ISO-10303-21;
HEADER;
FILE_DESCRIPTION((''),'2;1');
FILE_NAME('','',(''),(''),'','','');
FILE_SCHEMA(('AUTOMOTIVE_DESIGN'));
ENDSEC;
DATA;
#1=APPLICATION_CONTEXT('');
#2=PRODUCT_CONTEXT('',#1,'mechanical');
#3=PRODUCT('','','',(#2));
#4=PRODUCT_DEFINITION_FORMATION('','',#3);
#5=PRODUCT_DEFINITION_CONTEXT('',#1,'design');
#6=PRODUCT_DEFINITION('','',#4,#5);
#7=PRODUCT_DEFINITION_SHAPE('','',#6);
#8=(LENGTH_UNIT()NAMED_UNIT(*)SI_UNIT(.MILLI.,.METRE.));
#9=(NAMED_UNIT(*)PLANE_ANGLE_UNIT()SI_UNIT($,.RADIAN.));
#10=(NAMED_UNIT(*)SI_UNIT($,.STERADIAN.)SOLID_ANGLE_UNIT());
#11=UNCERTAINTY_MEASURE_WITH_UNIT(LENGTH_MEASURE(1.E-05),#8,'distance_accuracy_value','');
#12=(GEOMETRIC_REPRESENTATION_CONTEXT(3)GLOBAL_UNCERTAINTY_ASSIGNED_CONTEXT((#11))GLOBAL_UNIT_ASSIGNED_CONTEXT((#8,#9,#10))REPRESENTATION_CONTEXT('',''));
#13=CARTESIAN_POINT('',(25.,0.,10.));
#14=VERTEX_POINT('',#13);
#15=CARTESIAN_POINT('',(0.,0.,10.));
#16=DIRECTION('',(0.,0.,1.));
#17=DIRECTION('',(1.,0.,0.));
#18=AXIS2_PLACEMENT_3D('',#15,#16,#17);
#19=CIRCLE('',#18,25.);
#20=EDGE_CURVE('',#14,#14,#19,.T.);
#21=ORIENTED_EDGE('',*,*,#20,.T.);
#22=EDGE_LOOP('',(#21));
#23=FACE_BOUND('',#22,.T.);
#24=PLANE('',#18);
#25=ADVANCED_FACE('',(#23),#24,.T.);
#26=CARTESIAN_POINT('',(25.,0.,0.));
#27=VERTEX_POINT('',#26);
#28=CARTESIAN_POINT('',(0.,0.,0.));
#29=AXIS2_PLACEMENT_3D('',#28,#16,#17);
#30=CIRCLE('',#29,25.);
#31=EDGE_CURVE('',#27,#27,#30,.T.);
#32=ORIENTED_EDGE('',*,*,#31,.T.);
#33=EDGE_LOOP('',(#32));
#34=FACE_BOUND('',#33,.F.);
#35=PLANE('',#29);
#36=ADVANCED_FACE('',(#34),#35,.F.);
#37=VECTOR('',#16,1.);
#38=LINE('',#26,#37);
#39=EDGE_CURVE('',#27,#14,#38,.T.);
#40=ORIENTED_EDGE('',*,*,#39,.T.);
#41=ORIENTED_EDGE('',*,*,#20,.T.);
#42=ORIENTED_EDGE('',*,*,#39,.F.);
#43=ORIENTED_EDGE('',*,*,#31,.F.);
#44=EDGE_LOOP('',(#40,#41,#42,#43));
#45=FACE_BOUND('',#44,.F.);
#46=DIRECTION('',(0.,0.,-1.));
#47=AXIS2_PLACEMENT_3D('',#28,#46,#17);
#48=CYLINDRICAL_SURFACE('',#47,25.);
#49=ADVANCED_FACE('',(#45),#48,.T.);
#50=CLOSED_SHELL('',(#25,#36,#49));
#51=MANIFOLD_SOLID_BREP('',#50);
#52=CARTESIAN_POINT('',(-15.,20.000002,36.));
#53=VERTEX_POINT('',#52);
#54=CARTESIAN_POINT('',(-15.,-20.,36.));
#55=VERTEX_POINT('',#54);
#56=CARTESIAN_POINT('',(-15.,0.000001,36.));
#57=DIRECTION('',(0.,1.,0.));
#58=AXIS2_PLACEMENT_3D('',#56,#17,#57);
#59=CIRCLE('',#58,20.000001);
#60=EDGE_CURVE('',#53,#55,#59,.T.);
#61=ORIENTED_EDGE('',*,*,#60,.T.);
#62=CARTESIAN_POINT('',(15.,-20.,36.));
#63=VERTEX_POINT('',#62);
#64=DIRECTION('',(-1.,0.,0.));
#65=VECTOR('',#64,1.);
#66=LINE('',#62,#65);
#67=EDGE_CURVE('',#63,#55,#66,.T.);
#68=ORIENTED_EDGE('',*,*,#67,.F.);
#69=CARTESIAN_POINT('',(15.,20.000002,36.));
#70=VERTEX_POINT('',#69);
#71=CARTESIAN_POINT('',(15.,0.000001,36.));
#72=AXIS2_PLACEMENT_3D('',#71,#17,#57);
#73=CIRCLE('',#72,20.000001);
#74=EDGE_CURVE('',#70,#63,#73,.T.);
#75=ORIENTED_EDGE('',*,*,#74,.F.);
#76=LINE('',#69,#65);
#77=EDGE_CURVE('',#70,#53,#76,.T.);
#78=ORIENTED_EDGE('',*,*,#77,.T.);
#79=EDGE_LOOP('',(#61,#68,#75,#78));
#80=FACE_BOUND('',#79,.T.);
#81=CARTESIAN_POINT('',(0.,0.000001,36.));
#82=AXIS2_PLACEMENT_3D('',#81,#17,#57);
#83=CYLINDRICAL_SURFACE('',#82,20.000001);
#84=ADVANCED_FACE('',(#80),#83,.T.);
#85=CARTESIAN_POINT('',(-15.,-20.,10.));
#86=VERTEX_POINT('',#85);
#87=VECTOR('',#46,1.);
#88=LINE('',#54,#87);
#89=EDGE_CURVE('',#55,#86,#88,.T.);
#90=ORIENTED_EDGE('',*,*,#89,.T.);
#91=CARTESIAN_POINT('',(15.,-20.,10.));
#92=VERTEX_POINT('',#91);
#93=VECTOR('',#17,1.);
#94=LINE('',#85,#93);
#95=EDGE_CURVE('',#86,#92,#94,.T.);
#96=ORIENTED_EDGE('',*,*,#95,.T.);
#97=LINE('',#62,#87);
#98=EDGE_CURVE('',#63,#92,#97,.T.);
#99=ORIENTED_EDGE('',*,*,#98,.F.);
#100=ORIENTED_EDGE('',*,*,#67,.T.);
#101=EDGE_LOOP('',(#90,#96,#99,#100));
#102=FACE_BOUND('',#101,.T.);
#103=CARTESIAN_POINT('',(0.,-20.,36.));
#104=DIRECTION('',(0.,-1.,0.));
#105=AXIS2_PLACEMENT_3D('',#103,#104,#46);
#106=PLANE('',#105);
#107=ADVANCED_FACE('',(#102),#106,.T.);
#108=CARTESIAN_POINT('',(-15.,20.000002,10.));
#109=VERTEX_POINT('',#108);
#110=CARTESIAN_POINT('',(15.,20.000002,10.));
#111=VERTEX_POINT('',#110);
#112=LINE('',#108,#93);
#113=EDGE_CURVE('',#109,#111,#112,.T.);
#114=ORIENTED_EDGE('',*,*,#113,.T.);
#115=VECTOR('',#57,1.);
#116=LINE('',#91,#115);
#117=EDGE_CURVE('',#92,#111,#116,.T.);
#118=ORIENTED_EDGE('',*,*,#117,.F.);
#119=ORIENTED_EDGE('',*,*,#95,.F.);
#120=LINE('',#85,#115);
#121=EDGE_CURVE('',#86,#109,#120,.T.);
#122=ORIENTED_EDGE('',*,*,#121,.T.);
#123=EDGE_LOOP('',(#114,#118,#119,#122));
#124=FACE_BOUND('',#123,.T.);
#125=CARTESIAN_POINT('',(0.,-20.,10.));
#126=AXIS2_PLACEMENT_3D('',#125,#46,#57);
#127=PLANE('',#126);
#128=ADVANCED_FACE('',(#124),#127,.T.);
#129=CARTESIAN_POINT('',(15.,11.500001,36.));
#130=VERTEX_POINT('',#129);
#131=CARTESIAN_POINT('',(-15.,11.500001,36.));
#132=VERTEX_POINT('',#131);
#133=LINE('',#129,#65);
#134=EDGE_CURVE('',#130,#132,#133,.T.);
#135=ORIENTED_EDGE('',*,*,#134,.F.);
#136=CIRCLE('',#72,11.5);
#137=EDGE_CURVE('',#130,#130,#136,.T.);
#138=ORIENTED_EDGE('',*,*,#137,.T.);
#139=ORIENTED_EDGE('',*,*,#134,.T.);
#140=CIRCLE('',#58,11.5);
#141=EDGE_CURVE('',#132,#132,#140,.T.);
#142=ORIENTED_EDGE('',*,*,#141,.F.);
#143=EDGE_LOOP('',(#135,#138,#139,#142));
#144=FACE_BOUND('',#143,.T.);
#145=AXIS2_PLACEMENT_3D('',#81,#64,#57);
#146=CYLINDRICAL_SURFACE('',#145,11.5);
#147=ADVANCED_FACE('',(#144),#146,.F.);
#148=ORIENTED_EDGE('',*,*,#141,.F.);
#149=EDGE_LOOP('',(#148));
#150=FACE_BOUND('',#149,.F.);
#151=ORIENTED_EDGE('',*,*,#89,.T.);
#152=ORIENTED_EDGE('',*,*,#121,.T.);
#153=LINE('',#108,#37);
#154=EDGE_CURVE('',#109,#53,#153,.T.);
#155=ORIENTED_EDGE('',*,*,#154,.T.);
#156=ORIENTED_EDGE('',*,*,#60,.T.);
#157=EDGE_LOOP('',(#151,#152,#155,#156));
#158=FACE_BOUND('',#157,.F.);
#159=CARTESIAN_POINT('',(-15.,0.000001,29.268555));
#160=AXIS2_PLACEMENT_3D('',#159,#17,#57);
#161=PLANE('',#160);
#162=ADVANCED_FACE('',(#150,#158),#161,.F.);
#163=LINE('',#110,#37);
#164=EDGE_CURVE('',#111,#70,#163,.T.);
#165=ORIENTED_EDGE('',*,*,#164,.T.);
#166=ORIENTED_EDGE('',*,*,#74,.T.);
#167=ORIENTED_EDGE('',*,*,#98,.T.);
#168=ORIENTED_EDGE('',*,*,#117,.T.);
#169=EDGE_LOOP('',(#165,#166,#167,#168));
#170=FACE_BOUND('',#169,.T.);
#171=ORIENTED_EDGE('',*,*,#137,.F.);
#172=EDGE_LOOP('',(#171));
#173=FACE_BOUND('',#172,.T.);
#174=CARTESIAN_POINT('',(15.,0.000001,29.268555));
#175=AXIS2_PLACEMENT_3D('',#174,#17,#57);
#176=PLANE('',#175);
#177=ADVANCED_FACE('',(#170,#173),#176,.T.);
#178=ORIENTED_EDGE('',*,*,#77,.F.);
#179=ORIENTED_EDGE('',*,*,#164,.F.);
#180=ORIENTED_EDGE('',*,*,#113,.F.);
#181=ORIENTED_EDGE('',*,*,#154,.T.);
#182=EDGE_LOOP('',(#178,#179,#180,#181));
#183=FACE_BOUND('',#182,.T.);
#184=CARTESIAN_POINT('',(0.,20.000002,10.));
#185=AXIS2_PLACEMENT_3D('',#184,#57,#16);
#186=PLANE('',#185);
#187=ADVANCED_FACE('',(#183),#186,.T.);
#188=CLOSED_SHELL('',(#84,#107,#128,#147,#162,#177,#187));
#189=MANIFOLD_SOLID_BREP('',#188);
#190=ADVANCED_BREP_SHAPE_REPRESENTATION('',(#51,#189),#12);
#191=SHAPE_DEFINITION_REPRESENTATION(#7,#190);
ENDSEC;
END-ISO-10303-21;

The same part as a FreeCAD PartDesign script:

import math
import FreeCAD as App
import Part
import Sketcher

doc = App.newDocument("Part")
body = doc.addObject("PartDesign::Body", "Body")

# Sketch on XY plane
sketch1 = doc.addObject("Sketcher::SketchObject", "Sketch")
body.addObject(sketch1)
sketch1.AttachmentSupport = (doc.XY_Plane, [""])
sketch1.MapMode = "FlatFace"
sketch1.addGeometry(Part.Circle(App.Vector(0, 0, 0), App.Vector(0, 0, 1), 25), False)
sketch1.addConstraint([
    Sketcher.Constraint("Coincident", 0, 3, -1, 1),
    Sketcher.Constraint("Diameter", 0, 50.0),
])
pad1 = doc.addObject("PartDesign::Pad", "Pad")
body.addObject(pad1)
pad1.Profile = sketch1
pad1.Length = 10
body2 = doc.addObject("PartDesign::Body", "Body001")

# Sketch on YZ plane
sketch2 = doc.addObject("Sketcher::SketchObject", "Sketch001")
body2.addObject(sketch2)
sketch2.AttachmentSupport = (doc.getObject("YZ_Plane001"), [""])
sketch2.MapMode = "FlatFace"
sketch2.addGeometry([
    Part.LineSegment(App.Vector(-20, 36, 0), App.Vector(-20, 10, 0)),  # 0
    Part.LineSegment(App.Vector(-20, 10, 0), App.Vector(20, 10, 0)),  # 1
    Part.LineSegment(App.Vector(20, 10, 0), App.Vector(20, 36, 0)),  # 2
    Part.ArcOfCircle(Part.Circle(App.Vector(0, 36, 0), App.Vector(0, 0, 1), 20), math.radians(0), math.radians(180)),  # 3
    Part.Circle(App.Vector(0, 36, 0), App.Vector(0, 0, 1), 12),  # 4
], False)
sketch2.addConstraint([
    Sketcher.Constraint("Coincident", 0, 2, 1, 1),
    Sketcher.Constraint("Coincident", 1, 2, 2, 1),
    Sketcher.Constraint("Tangent", 2, 2, 3, 1),
    Sketcher.Constraint("Tangent", 3, 2, 0, 1),
    Sketcher.Constraint("Vertical", 0),
    Sketcher.Constraint("Horizontal", 1),
    Sketcher.Constraint("Vertical", 2),
    Sketcher.Constraint("Coincident", 4, 3, 3, 3),
    Sketcher.Constraint("PointOnObject", 3, 3, -2),
    Sketcher.Constraint("Diameter", 4, 23.0),
    Sketcher.Constraint("Radius", 3, 20.000001),
    Sketcher.Constraint("DistanceY", 0, 2, 0, 1, 26.0),
    Sketcher.Constraint("DistanceY", -1, 1, 3, 3, 36.0),
])
pad2 = doc.addObject("PartDesign::Pad", "Pad001")
body2.addObject(pad2)
pad2.Profile = sketch2
pad2.Length = 30
pad2.Midplane = True

doc.recompute()
